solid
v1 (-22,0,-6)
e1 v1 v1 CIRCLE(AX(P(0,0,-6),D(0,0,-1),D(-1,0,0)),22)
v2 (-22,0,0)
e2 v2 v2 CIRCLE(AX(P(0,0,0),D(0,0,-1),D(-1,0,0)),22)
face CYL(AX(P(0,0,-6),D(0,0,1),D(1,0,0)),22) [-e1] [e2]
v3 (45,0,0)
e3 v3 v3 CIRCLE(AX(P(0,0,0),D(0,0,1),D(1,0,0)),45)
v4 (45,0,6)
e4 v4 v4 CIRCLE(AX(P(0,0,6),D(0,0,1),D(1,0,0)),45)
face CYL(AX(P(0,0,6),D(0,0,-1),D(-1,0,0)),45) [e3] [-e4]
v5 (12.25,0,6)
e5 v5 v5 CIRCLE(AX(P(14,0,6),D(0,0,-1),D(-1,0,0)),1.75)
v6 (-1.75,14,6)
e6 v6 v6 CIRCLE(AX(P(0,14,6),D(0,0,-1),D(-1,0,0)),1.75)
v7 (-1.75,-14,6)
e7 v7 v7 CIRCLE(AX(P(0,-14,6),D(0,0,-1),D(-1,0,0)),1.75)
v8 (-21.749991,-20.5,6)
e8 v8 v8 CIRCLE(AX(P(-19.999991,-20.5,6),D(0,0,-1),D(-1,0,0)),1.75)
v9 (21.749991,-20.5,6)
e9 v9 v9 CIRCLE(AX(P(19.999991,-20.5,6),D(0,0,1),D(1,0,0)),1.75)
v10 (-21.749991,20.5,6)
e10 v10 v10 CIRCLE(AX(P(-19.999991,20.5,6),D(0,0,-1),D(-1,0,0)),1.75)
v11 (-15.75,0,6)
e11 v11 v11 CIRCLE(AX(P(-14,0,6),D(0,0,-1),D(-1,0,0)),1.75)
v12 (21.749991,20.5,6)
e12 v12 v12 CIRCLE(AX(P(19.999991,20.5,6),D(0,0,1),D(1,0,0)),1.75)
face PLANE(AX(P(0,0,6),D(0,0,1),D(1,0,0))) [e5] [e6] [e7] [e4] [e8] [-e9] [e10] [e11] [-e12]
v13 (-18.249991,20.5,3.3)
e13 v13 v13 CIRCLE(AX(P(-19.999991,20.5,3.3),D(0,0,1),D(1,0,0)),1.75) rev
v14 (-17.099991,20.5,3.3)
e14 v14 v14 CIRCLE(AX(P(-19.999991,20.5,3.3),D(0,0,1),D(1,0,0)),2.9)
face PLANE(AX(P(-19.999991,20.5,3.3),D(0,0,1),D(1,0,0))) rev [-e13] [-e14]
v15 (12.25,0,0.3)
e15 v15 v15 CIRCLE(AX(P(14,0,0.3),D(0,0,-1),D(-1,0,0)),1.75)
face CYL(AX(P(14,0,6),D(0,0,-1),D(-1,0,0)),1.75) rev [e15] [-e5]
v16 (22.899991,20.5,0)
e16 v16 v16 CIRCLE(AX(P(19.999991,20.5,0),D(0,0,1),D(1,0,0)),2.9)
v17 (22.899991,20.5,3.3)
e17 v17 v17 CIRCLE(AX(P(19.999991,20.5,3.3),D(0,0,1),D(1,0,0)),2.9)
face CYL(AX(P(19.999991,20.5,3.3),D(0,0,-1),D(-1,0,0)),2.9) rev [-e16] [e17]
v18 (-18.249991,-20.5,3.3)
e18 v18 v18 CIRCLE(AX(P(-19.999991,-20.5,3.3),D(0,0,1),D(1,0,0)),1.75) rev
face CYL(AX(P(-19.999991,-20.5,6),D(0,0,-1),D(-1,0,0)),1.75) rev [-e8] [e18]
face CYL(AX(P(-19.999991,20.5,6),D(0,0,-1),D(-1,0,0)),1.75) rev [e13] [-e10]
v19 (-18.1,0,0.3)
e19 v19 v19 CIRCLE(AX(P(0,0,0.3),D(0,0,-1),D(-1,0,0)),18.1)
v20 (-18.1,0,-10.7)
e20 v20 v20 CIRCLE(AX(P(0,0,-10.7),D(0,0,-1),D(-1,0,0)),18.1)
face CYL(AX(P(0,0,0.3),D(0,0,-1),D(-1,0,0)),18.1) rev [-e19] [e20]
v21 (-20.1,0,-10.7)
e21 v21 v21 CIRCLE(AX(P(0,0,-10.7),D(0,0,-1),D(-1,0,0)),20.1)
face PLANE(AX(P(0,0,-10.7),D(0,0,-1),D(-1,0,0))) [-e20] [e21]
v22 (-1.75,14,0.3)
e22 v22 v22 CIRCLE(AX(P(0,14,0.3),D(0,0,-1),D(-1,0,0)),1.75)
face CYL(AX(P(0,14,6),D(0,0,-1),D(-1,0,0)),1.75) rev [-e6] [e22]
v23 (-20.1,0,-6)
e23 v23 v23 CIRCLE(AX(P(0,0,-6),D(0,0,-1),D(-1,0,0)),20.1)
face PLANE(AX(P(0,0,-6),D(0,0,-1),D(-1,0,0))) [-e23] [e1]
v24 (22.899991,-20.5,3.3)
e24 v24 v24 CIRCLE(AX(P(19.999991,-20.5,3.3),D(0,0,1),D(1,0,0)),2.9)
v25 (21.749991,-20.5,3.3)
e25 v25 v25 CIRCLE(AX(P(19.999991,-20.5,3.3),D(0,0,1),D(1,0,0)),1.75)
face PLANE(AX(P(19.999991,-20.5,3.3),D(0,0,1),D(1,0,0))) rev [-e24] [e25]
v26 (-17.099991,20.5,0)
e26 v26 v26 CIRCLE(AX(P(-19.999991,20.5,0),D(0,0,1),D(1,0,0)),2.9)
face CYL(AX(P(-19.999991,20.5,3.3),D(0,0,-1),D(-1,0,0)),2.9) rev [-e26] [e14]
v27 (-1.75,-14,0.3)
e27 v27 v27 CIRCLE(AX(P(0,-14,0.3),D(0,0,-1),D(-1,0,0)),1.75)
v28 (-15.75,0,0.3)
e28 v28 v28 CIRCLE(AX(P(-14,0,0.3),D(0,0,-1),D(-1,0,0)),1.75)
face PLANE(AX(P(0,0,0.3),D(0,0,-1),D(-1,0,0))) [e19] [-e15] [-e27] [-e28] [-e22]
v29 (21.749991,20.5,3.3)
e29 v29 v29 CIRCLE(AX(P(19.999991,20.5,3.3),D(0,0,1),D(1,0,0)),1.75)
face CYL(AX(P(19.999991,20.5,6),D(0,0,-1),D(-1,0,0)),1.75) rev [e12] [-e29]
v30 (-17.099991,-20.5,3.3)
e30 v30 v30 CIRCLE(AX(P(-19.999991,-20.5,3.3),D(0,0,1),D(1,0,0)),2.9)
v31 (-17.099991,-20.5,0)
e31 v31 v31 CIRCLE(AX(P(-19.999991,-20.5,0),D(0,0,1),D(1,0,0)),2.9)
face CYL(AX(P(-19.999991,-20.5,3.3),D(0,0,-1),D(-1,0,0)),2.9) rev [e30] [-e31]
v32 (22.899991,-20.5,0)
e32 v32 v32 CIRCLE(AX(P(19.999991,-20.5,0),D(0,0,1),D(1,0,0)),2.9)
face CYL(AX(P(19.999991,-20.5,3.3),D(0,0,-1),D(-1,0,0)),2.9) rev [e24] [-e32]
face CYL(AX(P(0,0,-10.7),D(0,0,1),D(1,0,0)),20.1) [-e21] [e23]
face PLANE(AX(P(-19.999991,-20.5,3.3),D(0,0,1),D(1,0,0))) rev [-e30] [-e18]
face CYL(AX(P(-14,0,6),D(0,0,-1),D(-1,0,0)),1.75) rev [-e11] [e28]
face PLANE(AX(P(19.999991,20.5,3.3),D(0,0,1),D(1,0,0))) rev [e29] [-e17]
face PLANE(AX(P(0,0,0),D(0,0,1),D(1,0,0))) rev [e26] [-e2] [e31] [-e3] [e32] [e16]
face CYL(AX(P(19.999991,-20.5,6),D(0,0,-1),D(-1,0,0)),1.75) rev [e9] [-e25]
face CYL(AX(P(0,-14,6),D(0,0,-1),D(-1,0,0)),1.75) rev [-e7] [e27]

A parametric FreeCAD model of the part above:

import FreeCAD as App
import Part
import Sketcher
from FreeCAD import Vector
Q = App.Units.Quantity

doc = App.newDocument("Part")
params = doc.addObject("Spreadsheet::Sheet", "Params")
for row, (alias, value) in enumerate([
    ("sketch1_diameter", "90 mm"),
    ("pad1_length", "6 mm"),
    ("sketch2_diameter", "44 mm"),
    ("pad2_length", "6 mm"),
    ("sketch3_diameter", "40.2 mm"),
    ("pad3_length", "4.7 mm"),
    ("sketch4_diameter", "36.2 mm"),
    ("pocket1_length", "11 mm"),
    ("sketch5_diameter", "3.5 mm"),
    ("sketch6_diameter", "3.5 mm"),
    ("sketch7_diameter", "5.8 mm"),
    ("pocket4_length", "3.3 mm"),
], start=1):
    params.set(f"A{row}", alias)
    params.set(f"B{row}", "=" + value)
    params.setAlias(f"B{row}", alias)

body = doc.addObject("PartDesign::Body", "Body")

# Sketch on XY plane
sketch1 = body.newObject("Sketcher::SketchObject", "Sketch")
sketch1.AttachmentSupport = (doc.getObject("XY_Plane"), [""])
sketch1.MapMode = "FlatFace"
sketch1.addGeometry(Part.Circle(Vector(0, 0, 0), Vector(0, 0, 1), 45), False)
sketch1.addConstraint([
    Sketcher.Constraint("Coincident", 0, 3, -1, 1),
    Sketcher.Constraint("Diameter", 0, Q("90 mm")),
])
sketch1.setExpression("Constraints[1]", "Params.sketch1_diameter")
pad1 = body.newObject("PartDesign::Pad", "Pad")
pad1.Profile = sketch1
pad1.setExpression("Length", "Params.pad1_length")

# Sketch on XY plane
sketch2 = body.newObject("Sketcher::SketchObject", "Sketch001")
sketch2.AttachmentSupport = (doc.getObject("XY_Plane"), [""])
sketch2.MapMode = "FlatFace"
sketch2.addGeometry(Part.Circle(Vector(0, 0, 0), Vector(0, 0, 1), 22), False)
sketch2.addConstraint([
    Sketcher.Constraint("Coincident", 0, 3, -1, 1),
    Sketcher.Constraint("Diameter", 0, Q("44 mm")),
])
sketch2.setExpression("Constraints[1]", "Params.sketch2_diameter")
pad2 = body.newObject("PartDesign::Pad", "Pad001")
pad2.Profile = sketch2
pad2.setExpression("Length", "Params.pad2_length")
pad2.Reversed = True

# Sketch on XY plane
sketch3 = body.newObject("Sketcher::SketchObject", "Sketch002")
sketch3.AttachmentSupport = (doc.getObject("XY_Plane"), [""])
sketch3.MapMode = "FlatFace"
sketch3.AttachmentOffset = App.Placement(Vector(0, 0, -6), App.Rotation())
sketch3.addGeometry(Part.Circle(Vector(0, 0, 0), Vector(0, 0, 1), 20.1), False)
sketch3.addConstraint([
    Sketcher.Constraint("Coincident", 0, 3, -1, 1),
    Sketcher.Constraint("Diameter", 0, Q("40.2 mm")),
])
sketch3.setExpression("Constraints[1]", "Params.sketch3_diameter")
pad3 = body.newObject("PartDesign::Pad", "Pad002")
pad3.Profile = sketch3
pad3.setExpression("Length", "Params.pad3_length")
pad3.Reversed = True

# Sketch on XY plane
sketch4 = body.newObject("Sketcher::SketchObject", "Sketch003")
sketch4.AttachmentSupport = (doc.getObject("XY_Plane"), [""])
sketch4.MapMode = "FlatFace"
sketch4.AttachmentOffset = App.Placement(Vector(0, 0, -10.7), App.Rotation())
sketch4.addGeometry(Part.Circle(Vector(0, 0, 0), Vector(0, 0, 1), 18.1), False)
sketch4.addConstraint([
    Sketcher.Constraint("Coincident", 0, 3, -1, 1),
    Sketcher.Constraint("Diameter", 0, Q("36.2 mm")),
])
sketch4.setExpression("Constraints[1]", "Params.sketch4_diameter")
pocket1 = body.newObject("PartDesign::Pocket", "Pocket")
pocket1.Profile = sketch4
pocket1.setExpression("Length", "Params.pocket1_length")
pocket1.Reversed = True

# Sketch on XY plane
sketch5 = body.newObject("Sketcher::SketchObject", "Sketch004")
sketch5.AttachmentSupport = (doc.getObject("XY_Plane"), [""])
sketch5.MapMode = "FlatFace"
sketch5.AttachmentOffset = App.Placement(Vector(0, 0, 0.3), App.Rotation())
sketch5.addGeometry([
    Part.Circle(Vector(-14, 0, 0), Vector(0, 0, 1), 1.75),
    Part.Circle(Vector(0, -14, 0), Vector(0, 0, 1), 1.75),
    Part.Circle(Vector(14, 0, 0), Vector(0, 0, 1), 1.75),
    Part.Circle(Vector(0, 14, 0), Vector(0, 0, 1), 1.75),
], False)
sketch5.addConstraint([
    Sketcher.Constraint("Equal", 0, 1),
    Sketcher.Constraint("Equal", 1, 2),
    Sketcher.Constraint("Equal", 2, 3),
    Sketcher.Constraint("Symmetric", 0, 3, 2, 3, -1, 1),
    Sketcher.Constraint("Symmetric", 1, 3, 3, 3, -1, 1),
    Sketcher.Constraint("PointOnObject", 0, 3, -1),
    Sketcher.Constraint("PointOnObject", 1, 3, -2),
    Sketcher.Constraint("Diameter", 0, Q("3.5 mm")),
    Sketcher.Constraint("DistanceX", 0, 3, -1, 1, Q("14 mm")),
    Sketcher.Constraint("DistanceY", 1, 3, -1, 1, Q("14 mm")),
])
sketch5.setExpression("Constraints[7]", "Params.sketch5_diameter")
pocket2 = body.newObject("PartDesign::Pocket", "Pocket001")
pocket2.Profile = sketch5
pocket2.Type = "ThroughAll"
pocket2.Reversed = True

# Sketch on XY plane
sketch6 = body.newObject("Sketcher::SketchObject", "Sketch005")
sketch6.AttachmentSupport = (doc.getObject("XY_Plane"), [""])
sketch6.MapMode = "FlatFace"
sketch6.AttachmentOffset = App.Placement(Vector(0, 0, 0.3), App.Rotation())
sketch6.addGeometry([
    Part.Circle(Vector(-19.999991, -20.5, 0), Vector(0, 0, 1), 1.75),
    Part.Circle(Vector(19.999991, 20.5, 0), Vector(0, 0, 1), 1.75),
    Part.Circle(Vector(19.999991, -20.5, 0), Vector(0, 0, 1), 1.75),
    Part.Circle(Vector(-19.999991, 20.5, 0), Vector(0, 0, 1), 1.75),
], False)
sketch6.addConstraint([
    Sketcher.Constraint("Equal", 0, 1),
    Sketcher.Constraint("Equal", 1, 2),
    Sketcher.Constraint("Equal", 2, 3),
    Sketcher.Constraint("Symmetric", 0, 3, 1, 3, -1, 1),
    Sketcher.Constraint("Symmetric", 2, 3, 3, 3, -1, 1),
    Sketcher.Constraint("Symmetric", 0, 3, 2, 3, -2),
    Sketcher.Constraint("Diameter", 0, Q("3.5 mm")),
    Sketcher.Constraint("DistanceY", 0, 3, 1, 3, Q("41 mm")),
    Sketcher.Constraint("DistanceX", 0, 3, -1, 1, Q("19.999991 mm")),
])
sketch6.setExpression("Constraints[6]", "Params.sketch6_diameter")
pocket3 = body.newObject("PartDesign::Pocket", "Pocket002")
pocket3.Profile = sketch6
pocket3.Type = "ThroughAll"
pocket3.Midplane = True

# Sketch on XY plane
sketch7 = body.newObject("Sketcher::SketchObject", "Sketch006")
sketch7.AttachmentSupport = (doc.getObject("XY_Plane"), [""])
sketch7.MapMode = "FlatFace"
sketch7.addGeometry([
    Part.Circle(Vector(19.999991, 20.5, 0), Vector(0, 0, 1), 2.9),
    Part.Circle(Vector(-19.999991, 20.5, 0), Vector(0, 0, 1), 2.9),
    Part.Circle(Vector(-19.999991, -20.5, 0), Vector(0, 0, 1), 2.9),
    Part.Circle(Vector(19.999991, -20.5, 0), Vector(0, 0, 1), 2.9),
], False)
sketch7.addConstraint([
    Sketcher.Constraint("Equal", 0, 1),
    Sketcher.Constraint("Equal", 1, 2),
    Sketcher.Constraint("Equal", 2, 3),
    Sketcher.Constraint("Symmetric", 0, 3, 2, 3, -1, 1),
    Sketcher.Constraint("Symmetric", 1, 3, 3, 3, -1, 1),
    Sketcher.Constraint("Symmetric", 0, 3, 1, 3, -2),
    Sketcher.Constraint("Diameter", 0, Q("5.8 mm")),
    Sketcher.Constraint("DistanceY", 2, 3, 1, 3, Q("41 mm")),
    Sketcher.Constraint("DistanceX", -1, 1, 0, 3, Q("19.999991 mm")),
])
sketch7.setExpression("Constraints[6]", "Params.sketch7_diameter")
pocket4 = body.newObject("PartDesign::Pocket", "Pocket003")
pocket4.Profile = sketch7
pocket4.setExpression("Length", "Params.pocket4_length")
pocket4.Reversed = True

doc.recompute()
